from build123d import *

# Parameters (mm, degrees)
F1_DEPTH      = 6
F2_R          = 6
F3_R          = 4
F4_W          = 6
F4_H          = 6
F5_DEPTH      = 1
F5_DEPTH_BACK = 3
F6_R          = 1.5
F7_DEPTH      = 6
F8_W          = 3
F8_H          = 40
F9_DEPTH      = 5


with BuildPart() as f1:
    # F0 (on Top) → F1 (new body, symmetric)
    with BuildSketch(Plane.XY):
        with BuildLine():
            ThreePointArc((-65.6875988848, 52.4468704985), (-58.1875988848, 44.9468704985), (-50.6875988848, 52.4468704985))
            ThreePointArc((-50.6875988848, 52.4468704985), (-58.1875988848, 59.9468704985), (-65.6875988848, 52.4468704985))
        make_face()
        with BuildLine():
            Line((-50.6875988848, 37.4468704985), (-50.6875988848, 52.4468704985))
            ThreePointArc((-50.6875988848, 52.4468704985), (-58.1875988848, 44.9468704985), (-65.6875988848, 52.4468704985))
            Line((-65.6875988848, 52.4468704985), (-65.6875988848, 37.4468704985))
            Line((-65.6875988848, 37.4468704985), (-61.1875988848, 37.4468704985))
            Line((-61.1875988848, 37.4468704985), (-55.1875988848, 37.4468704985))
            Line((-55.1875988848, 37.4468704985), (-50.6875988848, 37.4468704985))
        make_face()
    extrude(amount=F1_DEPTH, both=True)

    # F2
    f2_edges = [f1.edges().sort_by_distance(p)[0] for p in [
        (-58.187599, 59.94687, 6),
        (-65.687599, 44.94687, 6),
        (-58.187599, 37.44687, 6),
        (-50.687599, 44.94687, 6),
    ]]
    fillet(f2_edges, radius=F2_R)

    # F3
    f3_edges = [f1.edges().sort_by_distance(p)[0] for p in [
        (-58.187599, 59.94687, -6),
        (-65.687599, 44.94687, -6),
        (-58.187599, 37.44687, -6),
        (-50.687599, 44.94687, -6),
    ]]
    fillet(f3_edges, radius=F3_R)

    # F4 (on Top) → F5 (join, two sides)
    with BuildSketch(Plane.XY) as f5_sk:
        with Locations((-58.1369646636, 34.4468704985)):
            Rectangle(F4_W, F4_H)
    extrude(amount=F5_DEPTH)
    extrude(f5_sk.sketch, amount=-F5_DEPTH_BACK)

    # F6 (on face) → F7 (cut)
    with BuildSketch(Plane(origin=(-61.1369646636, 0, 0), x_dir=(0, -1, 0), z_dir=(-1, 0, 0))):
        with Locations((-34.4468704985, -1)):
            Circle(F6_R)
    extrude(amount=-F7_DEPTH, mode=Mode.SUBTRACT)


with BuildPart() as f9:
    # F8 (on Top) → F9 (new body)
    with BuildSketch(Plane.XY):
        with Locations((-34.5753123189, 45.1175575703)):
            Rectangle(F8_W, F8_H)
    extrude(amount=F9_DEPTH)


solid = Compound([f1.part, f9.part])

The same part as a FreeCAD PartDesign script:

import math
import FreeCAD as App
import Part
import Sketcher
from FreeCAD import Vector


def edges_at(feature, points):
    """Names of the edges that pass closest to the given points."""
    edges = feature.Shape.Edges
    near = lambda p: min(range(len(edges)), key=lambda i: edges[i].distToShape(Part.Vertex(*p))[0])
    return sorted({f"Edge{near(p) + 1}" for p in points})


def add_polygon(sketch, points):
    """Adds a closed chain of lines whose ends are joined by coincident constraints."""
    first, n = sketch.GeometryCount, len(points)
    for a, b in zip(points, points[1:] + points[:1]):
        sketch.addGeometry(Part.LineSegment(App.Vector(*a, 0), App.Vector(*b, 0)), False)
    for i in range(n):
        sketch.addConstraint(Sketcher.Constraint("Coincident", first + i, 2, first + (i + 1) % n, 1))

doc = App.newDocument("Part")
body = doc.addObject("PartDesign::Body", "Body")

# Sketch on XY plane
sketch1 = doc.addObject("Sketcher::SketchObject", "Sketch")
body.addObject(sketch1)
sketch1.AttachmentSupport = (doc.XY_Plane, [""])
sketch1.MapMode = "FlatFace"
sketch1.addGeometry(Part.ArcOfCircle(Part.Circle(Vector(-58.187599, 52.44687, 0), Vector(0, 0, 1), 7.5), math.radians(0), math.radians(180)), False)
sketch1.addGeometry(Part.LineSegment(Vector(-65.687599, 52.44687, 0), Vector(-65.687599, 37.44687, 0)), False)
sketch1.addGeometry(Part.LineSegment(Vector(-65.687599, 37.44687, 0), Vector(-50.687599, 37.44687, 0)), False)
sketch1.addGeometry(Part.LineSegment(Vector(-50.687599, 37.44687, 0), Vector(-50.687599, 52.44687, 0)), False)
sketch1.addConstraint(Sketcher.Constraint("Tangent", 0, 2, 1, 1))
sketch1.addConstraint(Sketcher.Constraint("Coincident", 1, 2, 2, 1))
sketch1.addConstraint(Sketcher.Constraint("Coincident", 2, 2, 3, 1))
sketch1.addConstraint(Sketcher.Constraint("Tangent", 3, 2, 0, 1))
sketch1.addConstraint(Sketcher.Constraint("Vertical", 1))
sketch1.addConstraint(Sketcher.Constraint("Horizontal", 2))
sketch1.addConstraint(Sketcher.Constraint("Vertical", 3))
sketch1.addConstraint(Sketcher.Constraint("Equal", 2, 1))
sketch1.addConstraint(Sketcher.Constraint("Radius", 0, 7.5))
sketch1.addConstraint(Sketcher.Constraint("DistanceX", 0, 3, -1, 1, 58.187599))
sketch1.addConstraint(Sketcher.Constraint("DistanceY", -1, 1, 0, 3, 52.44687))
pad1 = doc.addObject("PartDesign::Pad", "Pad")
body.addObject(pad1)
pad1.Profile = sketch1
pad1.Length = 12
pad1.Midplane = True
doc.recompute()

fillet = doc.addObject("PartDesign::Fillet", "Fillet")
body.addObject(fillet)
fillet.Base = (pad1, edges_at(pad1, [
    (-58.188, 59.947, 6),
    (-65.688, 44.947, 6),
    (-58.188, 37.447, 6),
    (-50.688, 44.947, 6),
]))
fillet.Radius = 6
doc.recompute()

fillet2 = doc.addObject("PartDesign::Fillet", "Fillet001")
body.addObject(fillet2)
fillet2.Base = (fillet, edges_at(fillet, [
    (-58.188, 59.947, -6),
    (-65.688, 44.947, -6),
    (-58.188, 37.447, -6),
    (-50.688, 44.947, -6),
]))
fillet2.Radius = 4

# Sketch on XY plane
sketch2 = doc.addObject("Sketcher::SketchObject", "Sketch001")
body.addObject(sketch2)
sketch2.AttachmentSupport = (doc.XY_Plane, [""])
sketch2.MapMode = "FlatFace"
add_polygon(sketch2, [(-61.136965, 37.44687), (-61.136965, 31.44687), (-55.136965, 31.44687), (-55.136965, 37.44687)])  # lines 0-3
sketch2.addConstraint(Sketcher.Constraint("Vertical", 0))
sketch2.addConstraint(Sketcher.Constraint("Horizontal", 1))
sketch2.addConstraint(Sketcher.Constraint("Vertical", 2))
sketch2.addConstraint(Sketcher.Constraint("Horizontal", 3))
sketch2.addConstraint(Sketcher.Constraint("Equal", 3, 0))
sketch2.addConstraint(Sketcher.Constraint("DistanceX", 1, 1, 1, 2, 6.0))
sketch2.addConstraint(Sketcher.Constraint("DistanceY", -1, 1, 0, 2, 31.44687))
sketch2.addConstraint(Sketcher.Constraint("DistanceX", 0, 2, -1, 1, 61.136965))
pad2 = doc.addObject("PartDesign::Pad", "Pad001")
body.addObject(pad2)
pad2.Profile = sketch2
pad2.Type = "TwoLengths"
pad2.Length = 1
pad2.Length2 = 3

# Sketch on YZ plane
sketch3 = doc.addObject("Sketcher::SketchObject", "Sketch002")
body.addObject(sketch3)
sketch3.AttachmentSupport = (doc.YZ_Plane, [""])
sketch3.MapMode = "FlatFace"
sketch3.AttachmentOffset = App.Placement(Vector(0, 0, -61.136965), App.Rotation())
sketch3.addGeometry(Part.Circle(Vector(34.44687, -1, 0), Vector(0, 0, 1), 1.5), False)
sketch3.addConstraint(Sketcher.Constraint("Diameter", 0, 3.0))
sketch3.addConstraint(Sketcher.Constraint("DistanceY", 0, 3, -1, 1, 1.0))
sketch3.addConstraint(Sketcher.Constraint("DistanceX", -1, 1, 0, 3, 34.44687))
pocket1 = doc.addObject("PartDesign::Pocket", "Pocket")
body.addObject(pocket1)
pocket1.Profile = sketch3
pocket1.Length = 6
pocket1.Reversed = True
body2 = doc.addObject("PartDesign::Body", "Body001")

# Sketch on XY plane
sketch4 = doc.addObject("Sketcher::SketchObject", "Sketch003")
body2.addObject(sketch4)
sketch4.AttachmentSupport = (doc.getObject("XY_Plane001"), [""])
sketch4.MapMode = "FlatFace"
add_polygon(sketch4, [(-36.075312, 65.117558), (-36.075312, 25.117558), (-33.075312, 25.117558), (-33.075312, 65.117558)])  # lines 0-3
sketch4.addConstraint(Sketcher.Constraint("Vertical", 0))
sketch4.addConstraint(Sketcher.Constraint("Horizontal", 1))
sketch4.addConstraint(Sketcher.Constraint("Vertical", 2))
sketch4.addConstraint(Sketcher.Constraint("Horizontal", 3))
sketch4.addConstraint(Sketcher.Constraint("DistanceX", 1, 1, 1, 2, 3.0))
sketch4.addConstraint(Sketcher.Constraint("DistanceY", 0, 2, 0, 1, 40.0))
sketch4.addConstraint(Sketcher.Constraint("DistanceX", 0, 2, -1, 1, 36.075312))
sketch4.addConstraint(Sketcher.Constraint("DistanceY", -1, 1, 0, 2, 25.117558))
pad3 = doc.addObject("PartDesign::Pad", "Pad002")
body2.addObject(pad3)
pad3.Profile = sketch4
pad3.Length = 5

doc.recompute()
